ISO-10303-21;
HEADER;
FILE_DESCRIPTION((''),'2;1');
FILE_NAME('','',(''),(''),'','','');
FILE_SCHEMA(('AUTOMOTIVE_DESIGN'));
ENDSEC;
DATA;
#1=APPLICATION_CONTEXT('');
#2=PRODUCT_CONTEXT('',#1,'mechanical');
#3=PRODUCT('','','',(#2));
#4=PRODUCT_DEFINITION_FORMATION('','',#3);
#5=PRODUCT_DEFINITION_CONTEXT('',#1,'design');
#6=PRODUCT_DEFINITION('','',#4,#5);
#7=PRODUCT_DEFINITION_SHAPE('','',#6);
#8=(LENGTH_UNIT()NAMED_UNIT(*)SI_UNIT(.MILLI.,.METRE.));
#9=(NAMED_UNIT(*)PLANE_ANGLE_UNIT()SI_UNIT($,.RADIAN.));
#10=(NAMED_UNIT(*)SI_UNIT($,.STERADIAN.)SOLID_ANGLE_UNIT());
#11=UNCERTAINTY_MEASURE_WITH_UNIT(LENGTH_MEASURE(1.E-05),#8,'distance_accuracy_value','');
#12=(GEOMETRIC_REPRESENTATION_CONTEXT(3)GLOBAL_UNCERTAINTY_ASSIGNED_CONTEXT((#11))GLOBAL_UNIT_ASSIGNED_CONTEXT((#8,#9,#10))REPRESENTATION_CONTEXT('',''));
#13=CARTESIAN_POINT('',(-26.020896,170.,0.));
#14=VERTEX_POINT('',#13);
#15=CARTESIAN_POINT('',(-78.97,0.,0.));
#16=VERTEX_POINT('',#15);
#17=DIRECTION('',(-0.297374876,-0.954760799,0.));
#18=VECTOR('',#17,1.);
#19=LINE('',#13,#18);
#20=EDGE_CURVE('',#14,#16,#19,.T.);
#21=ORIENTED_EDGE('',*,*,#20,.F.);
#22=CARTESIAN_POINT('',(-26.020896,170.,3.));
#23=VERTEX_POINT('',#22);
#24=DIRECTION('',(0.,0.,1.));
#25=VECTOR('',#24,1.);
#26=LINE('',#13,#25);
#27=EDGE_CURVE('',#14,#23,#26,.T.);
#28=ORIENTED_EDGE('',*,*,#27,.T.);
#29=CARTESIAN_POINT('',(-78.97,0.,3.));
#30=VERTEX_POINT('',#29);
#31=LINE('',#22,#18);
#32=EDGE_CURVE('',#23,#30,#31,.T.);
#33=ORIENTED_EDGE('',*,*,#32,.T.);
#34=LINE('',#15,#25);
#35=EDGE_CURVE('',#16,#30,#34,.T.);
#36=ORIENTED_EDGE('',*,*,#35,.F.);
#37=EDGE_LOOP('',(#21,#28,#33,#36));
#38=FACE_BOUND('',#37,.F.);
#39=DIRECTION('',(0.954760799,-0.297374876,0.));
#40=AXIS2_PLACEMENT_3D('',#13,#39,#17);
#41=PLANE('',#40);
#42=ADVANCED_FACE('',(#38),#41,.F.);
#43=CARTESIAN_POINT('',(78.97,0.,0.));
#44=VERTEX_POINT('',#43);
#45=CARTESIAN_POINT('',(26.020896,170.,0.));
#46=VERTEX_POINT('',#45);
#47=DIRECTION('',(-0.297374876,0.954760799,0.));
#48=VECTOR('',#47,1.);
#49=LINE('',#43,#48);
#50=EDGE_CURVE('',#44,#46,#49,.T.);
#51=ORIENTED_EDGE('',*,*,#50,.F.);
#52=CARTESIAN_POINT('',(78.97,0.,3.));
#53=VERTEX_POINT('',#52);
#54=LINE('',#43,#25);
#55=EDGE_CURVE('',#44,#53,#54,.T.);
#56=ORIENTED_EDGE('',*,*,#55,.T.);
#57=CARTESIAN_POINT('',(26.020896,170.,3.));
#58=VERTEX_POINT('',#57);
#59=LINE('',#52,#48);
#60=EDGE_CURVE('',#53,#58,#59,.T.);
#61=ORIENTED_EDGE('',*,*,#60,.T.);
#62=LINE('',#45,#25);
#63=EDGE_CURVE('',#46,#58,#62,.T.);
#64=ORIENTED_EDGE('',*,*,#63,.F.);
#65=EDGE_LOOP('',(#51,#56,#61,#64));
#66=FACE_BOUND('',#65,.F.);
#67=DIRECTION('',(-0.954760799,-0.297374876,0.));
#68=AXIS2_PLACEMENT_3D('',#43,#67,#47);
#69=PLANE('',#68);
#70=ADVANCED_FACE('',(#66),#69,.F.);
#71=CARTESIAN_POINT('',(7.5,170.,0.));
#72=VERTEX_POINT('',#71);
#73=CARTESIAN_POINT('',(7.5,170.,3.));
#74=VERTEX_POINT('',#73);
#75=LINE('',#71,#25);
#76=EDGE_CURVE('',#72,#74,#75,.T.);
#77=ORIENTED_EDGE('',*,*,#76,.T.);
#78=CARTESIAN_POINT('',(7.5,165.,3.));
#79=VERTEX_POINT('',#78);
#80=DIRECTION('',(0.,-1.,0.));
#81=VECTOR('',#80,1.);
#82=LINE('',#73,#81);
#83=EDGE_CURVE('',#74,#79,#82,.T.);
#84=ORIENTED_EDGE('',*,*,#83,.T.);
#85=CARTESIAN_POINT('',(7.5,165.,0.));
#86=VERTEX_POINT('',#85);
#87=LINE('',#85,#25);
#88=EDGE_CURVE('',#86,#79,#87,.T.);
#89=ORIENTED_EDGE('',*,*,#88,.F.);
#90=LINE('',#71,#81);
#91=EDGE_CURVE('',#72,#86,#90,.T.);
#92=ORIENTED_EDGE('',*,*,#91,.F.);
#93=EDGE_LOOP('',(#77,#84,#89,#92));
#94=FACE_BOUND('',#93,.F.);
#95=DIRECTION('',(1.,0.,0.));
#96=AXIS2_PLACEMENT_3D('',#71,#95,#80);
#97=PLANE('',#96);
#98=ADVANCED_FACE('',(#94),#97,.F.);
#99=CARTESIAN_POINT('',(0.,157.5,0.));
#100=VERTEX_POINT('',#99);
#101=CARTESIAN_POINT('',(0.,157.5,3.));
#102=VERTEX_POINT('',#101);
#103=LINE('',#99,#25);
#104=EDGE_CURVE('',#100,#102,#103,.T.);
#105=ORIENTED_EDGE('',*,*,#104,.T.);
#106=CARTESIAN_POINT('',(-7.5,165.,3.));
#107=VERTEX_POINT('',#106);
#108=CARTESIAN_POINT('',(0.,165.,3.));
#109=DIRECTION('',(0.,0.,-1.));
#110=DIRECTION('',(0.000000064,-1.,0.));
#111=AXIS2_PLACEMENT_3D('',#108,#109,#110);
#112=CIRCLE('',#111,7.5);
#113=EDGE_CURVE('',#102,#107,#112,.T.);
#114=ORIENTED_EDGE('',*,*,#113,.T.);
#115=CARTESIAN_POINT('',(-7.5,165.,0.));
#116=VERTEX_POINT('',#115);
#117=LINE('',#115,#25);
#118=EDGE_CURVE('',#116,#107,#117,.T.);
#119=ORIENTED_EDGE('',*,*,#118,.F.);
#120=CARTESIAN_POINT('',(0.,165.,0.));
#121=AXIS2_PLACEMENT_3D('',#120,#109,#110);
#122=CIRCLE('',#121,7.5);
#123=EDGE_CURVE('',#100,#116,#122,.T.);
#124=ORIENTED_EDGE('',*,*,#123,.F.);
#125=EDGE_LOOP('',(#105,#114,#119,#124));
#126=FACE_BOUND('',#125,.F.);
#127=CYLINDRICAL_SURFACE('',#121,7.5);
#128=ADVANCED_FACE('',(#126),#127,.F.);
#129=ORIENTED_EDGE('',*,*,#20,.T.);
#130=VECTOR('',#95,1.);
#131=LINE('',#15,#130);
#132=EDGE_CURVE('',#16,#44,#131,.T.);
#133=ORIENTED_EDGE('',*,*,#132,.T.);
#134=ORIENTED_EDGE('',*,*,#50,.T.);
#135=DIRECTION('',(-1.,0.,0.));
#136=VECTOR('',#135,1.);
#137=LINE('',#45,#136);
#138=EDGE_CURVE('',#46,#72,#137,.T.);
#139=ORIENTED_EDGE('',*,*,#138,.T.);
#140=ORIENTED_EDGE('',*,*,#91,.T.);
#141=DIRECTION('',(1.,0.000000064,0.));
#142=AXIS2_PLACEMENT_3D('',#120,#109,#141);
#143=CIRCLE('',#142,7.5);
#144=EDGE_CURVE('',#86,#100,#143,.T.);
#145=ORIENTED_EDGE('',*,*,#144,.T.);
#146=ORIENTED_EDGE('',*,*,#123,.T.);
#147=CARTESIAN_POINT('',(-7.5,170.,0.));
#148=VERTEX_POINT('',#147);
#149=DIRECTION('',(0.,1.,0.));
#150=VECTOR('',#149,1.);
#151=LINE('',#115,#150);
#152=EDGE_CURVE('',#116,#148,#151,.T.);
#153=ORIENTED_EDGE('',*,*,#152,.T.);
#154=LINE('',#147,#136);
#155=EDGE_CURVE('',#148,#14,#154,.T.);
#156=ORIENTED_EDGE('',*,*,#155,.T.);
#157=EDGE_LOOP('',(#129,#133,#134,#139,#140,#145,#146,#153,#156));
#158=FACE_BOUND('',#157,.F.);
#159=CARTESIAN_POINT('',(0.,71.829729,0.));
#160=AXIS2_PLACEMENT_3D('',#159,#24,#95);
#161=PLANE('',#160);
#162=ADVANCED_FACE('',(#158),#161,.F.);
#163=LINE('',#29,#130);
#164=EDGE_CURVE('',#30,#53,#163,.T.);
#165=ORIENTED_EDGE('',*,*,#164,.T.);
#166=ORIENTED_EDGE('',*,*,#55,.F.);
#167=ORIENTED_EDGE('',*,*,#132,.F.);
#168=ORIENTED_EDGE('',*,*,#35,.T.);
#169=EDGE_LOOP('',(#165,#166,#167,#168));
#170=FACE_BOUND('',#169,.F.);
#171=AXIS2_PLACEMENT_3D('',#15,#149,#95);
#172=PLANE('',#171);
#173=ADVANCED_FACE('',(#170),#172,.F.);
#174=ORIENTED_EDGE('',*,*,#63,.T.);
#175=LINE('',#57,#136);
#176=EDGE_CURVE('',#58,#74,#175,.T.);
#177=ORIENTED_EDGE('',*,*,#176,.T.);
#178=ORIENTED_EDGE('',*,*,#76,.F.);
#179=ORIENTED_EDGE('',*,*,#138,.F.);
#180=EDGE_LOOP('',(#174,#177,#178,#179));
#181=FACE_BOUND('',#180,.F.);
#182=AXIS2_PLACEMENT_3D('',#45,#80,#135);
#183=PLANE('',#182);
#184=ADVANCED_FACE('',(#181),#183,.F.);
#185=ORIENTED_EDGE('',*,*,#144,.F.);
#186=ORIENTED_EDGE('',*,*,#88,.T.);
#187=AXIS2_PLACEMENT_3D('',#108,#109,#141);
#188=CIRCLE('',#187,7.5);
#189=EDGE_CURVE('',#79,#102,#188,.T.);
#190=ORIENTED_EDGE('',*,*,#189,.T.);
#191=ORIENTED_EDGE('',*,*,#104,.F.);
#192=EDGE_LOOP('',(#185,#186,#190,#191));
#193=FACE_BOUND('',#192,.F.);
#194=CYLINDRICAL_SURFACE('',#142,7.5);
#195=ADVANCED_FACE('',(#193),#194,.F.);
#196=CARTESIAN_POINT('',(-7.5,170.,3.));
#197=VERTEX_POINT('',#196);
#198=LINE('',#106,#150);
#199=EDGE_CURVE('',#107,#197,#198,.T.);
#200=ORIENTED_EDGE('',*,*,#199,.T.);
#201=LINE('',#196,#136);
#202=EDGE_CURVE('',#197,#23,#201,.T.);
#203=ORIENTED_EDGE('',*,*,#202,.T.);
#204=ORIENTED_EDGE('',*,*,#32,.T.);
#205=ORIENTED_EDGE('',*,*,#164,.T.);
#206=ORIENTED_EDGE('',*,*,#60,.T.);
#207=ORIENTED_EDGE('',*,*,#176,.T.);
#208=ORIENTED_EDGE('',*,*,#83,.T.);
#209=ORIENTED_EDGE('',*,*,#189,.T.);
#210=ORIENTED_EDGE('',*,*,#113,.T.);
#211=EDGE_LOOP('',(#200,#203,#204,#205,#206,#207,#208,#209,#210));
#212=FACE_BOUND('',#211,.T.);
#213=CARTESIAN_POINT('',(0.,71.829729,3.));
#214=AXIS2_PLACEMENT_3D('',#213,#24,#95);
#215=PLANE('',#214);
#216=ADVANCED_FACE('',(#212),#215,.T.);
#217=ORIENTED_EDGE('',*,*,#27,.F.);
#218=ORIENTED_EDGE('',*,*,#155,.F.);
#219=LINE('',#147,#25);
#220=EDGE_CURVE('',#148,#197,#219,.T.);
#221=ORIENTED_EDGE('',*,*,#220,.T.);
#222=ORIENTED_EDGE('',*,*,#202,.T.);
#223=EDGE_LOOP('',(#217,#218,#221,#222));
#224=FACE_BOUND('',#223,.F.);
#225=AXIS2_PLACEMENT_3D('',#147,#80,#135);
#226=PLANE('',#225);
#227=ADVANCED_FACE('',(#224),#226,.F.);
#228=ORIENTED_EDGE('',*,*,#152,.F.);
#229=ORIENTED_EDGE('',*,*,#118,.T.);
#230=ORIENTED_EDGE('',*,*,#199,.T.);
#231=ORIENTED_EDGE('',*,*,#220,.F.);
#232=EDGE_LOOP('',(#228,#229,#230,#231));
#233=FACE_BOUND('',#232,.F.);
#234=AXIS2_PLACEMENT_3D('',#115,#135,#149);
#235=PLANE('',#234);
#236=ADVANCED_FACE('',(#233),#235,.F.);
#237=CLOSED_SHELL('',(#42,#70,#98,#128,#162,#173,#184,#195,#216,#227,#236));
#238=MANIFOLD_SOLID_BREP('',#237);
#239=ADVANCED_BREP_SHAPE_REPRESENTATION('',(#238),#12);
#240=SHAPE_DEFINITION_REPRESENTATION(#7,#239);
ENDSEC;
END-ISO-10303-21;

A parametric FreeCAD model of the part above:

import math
import FreeCAD as App
import Part
import Sketcher

V = App.Vector
Q = App.Units.Quantity

doc = App.newDocument("Part")
body = doc.addObject("PartDesign::Body", "Body")

# Sketch on XY plane
sketch1 = doc.addObject("Sketcher::SketchObject", "Sketch")
body.addObject(sketch1)
sketch1.AttachmentSupport = (doc.XY_Plane, [""])
sketch1.MapMode = "FlatFace"
sketch1.addGeometry([
    Part.LineSegment(V(-78.97, 0, 0), V(78.97, 0, 0)),  # 0
    Part.LineSegment(V(78.97, 0, 0), V(26.020896, 170, 0)),  # 1
    Part.LineSegment(V(26.020896, 170, 0), V(7.5, 170, 0)),  # 2
    Part.LineSegment(V(7.5, 170, 0), V(7.5, 165, 0)),  # 3
    Part.ArcOfCircle(Part.Circle(V(0, 165, 0), V(0, 0, 1), 7.5), math.radians(-90.000004), math.radians(0.000004)),  # 4
    Part.ArcOfCircle(Part.Circle(V(0, 165, 0), V(0, 0, 1), 7.5), math.radians(179.999996), math.radians(270.000004)),  # 5
    Part.LineSegment(V(-7.5, 165, 0), V(-7.5, 170, 0)),  # 6
    Part.LineSegment(V(-7.5, 170, 0), V(-26.020896, 170, 0)),  # 7
    Part.LineSegment(V(-26.020896, 170, 0), V(-78.97, 0, 0)),  # 8
], False)
sketch1.addConstraint([
    Sketcher.Constraint("Coincident", 0, 2, 1, 1),
    Sketcher.Constraint("Coincident", 1, 2, 2, 1),
    Sketcher.Constraint("Coincident", 2, 2, 3, 1),
    Sketcher.Constraint("Tangent", 3, 2, 4, 2),
    Sketcher.Constraint("Tangent", 4, 1, 5, 2),
    Sketcher.Constraint("Tangent", 5, 1, 6, 1),
    Sketcher.Constraint("Coincident", 6, 2, 7, 1),
    Sketcher.Constraint("Coincident", 7, 2, 8, 1),
    Sketcher.Constraint("Coincident", 8, 2, 0, 1),
    Sketcher.Constraint("Horizontal", 0),
    Sketcher.Constraint("Horizontal", 2),
    Sketcher.Constraint("Vertical", 3),
    Sketcher.Constraint("Vertical", 6),
    Sketcher.Constraint("Horizontal", 7),
    Sketcher.Constraint("Equal", 4, 5),
    Sketcher.Constraint("Symmetric", 0, 2, 8, 2, -1, 1),
    Sketcher.Constraint("Symmetric", 2, 2, 6, 2, -2),
    Sketcher.Constraint("PointOnObject", 4, 1, -2),
    Sketcher.Constraint("Equal", 2, 7),
    Sketcher.Constraint("Radius", 4, Q("7.5 mm")),
    Sketcher.Constraint("DistanceY", 3, 2, 3, 1, Q("5 mm")),
    Sketcher.Constraint("DistanceY", -1, 1, 4, 3, Q("165 mm")),
    Sketcher.Constraint("Angle", 1, Q("107.3 deg")),
    Sketcher.Constraint("DistanceX", 0, 1, 0, 2, Q("157.94 mm")),
])
pad1 = doc.addObject("PartDesign::Pad", "Pad")
body.addObject(pad1)
pad1.Profile = sketch1
pad1.Length = 3

doc.recompute()
